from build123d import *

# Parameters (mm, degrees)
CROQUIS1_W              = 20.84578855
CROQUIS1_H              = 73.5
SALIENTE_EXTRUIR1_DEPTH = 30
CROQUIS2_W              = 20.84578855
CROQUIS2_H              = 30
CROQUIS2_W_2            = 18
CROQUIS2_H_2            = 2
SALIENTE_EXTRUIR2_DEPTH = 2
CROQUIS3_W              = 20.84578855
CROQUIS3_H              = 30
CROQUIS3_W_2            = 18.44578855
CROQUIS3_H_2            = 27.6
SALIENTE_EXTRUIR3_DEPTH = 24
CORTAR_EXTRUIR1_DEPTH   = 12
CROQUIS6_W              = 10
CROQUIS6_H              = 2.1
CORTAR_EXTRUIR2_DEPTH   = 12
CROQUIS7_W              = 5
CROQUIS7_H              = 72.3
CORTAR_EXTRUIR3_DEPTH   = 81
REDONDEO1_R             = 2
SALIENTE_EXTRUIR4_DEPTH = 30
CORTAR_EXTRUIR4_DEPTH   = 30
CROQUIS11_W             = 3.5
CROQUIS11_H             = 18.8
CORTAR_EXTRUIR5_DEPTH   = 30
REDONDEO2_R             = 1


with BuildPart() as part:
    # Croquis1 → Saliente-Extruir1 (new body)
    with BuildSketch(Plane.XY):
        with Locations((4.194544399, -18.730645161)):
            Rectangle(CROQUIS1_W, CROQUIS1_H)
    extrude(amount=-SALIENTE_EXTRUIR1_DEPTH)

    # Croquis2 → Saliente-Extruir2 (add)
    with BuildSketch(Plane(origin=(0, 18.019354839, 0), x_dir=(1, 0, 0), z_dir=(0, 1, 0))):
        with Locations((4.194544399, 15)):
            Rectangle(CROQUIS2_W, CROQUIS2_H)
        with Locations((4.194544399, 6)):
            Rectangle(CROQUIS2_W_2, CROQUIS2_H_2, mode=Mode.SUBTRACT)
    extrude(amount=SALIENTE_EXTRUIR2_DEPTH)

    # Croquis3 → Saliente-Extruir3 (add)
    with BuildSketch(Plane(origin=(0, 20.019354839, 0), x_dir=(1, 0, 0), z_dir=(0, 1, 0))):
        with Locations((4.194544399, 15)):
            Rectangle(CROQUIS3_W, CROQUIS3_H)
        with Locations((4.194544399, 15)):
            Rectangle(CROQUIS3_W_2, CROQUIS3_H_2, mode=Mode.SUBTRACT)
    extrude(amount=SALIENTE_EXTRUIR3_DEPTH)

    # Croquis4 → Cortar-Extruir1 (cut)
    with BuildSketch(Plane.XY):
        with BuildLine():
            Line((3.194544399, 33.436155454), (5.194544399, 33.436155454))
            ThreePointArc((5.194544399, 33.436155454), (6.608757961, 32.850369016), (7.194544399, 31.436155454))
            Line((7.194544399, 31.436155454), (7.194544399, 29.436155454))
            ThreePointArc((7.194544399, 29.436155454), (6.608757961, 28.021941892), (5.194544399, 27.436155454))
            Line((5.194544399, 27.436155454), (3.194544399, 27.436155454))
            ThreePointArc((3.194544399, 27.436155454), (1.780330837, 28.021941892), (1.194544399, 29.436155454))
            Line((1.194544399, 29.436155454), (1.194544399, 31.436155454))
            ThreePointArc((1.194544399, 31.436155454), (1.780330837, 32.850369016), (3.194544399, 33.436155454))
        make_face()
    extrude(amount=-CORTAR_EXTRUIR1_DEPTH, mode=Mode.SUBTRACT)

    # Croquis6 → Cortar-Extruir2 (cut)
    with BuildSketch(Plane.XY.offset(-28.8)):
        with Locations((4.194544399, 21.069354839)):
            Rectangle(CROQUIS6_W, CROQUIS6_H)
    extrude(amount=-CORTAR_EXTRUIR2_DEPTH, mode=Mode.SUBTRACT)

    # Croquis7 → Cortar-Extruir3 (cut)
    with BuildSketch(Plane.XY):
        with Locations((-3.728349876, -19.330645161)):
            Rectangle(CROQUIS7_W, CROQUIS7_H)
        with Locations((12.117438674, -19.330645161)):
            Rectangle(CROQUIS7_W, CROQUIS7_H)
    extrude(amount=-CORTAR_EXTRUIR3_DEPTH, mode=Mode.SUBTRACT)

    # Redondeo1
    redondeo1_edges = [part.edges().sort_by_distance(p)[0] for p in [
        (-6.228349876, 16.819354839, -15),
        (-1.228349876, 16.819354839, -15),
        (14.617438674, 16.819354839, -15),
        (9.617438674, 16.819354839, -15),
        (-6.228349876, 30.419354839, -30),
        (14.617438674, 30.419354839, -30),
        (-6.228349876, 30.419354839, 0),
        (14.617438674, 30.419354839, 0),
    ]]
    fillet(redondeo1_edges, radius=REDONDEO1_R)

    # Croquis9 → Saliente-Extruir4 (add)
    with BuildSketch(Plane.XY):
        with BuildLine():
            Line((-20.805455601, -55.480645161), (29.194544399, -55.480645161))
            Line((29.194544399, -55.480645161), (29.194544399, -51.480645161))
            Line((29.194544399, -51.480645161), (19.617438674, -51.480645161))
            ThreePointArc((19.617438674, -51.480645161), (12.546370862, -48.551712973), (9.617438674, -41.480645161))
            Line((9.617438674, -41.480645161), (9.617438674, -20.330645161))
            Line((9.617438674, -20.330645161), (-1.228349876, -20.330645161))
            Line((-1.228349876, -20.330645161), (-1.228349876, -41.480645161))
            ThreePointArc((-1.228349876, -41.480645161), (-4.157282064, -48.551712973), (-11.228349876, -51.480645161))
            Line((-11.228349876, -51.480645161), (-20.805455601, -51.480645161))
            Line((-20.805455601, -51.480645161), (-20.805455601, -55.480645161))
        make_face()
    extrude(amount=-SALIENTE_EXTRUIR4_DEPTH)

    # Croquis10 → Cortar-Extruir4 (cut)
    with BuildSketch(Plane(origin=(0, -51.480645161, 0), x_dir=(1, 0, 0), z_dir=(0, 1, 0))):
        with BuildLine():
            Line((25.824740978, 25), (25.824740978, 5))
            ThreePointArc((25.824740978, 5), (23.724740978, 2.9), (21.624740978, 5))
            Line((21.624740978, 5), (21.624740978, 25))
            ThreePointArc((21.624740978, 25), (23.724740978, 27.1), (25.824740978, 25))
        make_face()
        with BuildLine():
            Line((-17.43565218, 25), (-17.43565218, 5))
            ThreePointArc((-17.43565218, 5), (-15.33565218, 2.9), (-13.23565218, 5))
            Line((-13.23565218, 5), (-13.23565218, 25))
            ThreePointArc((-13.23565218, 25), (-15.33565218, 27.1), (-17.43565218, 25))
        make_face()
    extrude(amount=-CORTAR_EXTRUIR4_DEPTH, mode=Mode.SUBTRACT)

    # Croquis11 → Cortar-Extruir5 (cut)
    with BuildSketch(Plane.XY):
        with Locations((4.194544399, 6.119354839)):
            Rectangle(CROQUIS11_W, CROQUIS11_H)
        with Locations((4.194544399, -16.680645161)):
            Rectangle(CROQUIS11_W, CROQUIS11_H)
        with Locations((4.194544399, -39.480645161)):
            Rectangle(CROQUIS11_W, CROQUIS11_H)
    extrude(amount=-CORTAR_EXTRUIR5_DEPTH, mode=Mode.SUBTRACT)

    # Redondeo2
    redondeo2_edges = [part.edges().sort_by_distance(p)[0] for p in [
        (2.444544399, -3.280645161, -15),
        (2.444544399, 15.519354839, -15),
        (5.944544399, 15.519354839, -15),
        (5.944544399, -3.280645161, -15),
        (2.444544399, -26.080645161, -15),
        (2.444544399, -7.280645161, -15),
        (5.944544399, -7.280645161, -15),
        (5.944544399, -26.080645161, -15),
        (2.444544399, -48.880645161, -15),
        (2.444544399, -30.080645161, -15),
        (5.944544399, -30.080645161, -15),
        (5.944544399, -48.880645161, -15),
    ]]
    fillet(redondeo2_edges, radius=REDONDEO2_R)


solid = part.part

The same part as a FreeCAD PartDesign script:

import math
import FreeCAD as App
import Part
import Sketcher

V = App.Vector


def edges_at(feature, points):
    """Names of the edges that pass closest to the given points."""
    edges = feature.Shape.Edges
    near = lambda p: min(range(len(edges)), key=lambda i: edges[i].distToShape(Part.Vertex(*p))[0])
    return sorted({f"Edge{near(p) + 1}" for p in points})

doc = App.newDocument("Part")
body = doc.addObject("PartDesign::Body", "Body")

sketch1 = body.newObject("Sketcher::SketchObject", "Sketch")
sketch1.AttachmentSupport = (doc.getObject("XY_Plane"), [""])
sketch1.MapMode = "FlatFace"
sketch1.addGeometry(Part.LineSegment(V(-6, 18, 0), V(-6, -55, 0)), False)
sketch1.addGeometry(Part.LineSegment(V(-6, -55, 0), V(15, -55, 0)), False)
sketch1.addGeometry(Part.LineSegment(V(15, -55, 0), V(15, 18, 0)), False)
sketch1.addGeometry(Part.LineSegment(V(15, 18, 0), V(-6, 18, 0)), False)
sketch1.addConstraint(Sketcher.Constraint("Coincident", 0, 2, 1, 1))
sketch1.addConstraint(Sketcher.Constraint("Coincident", 1, 2, 2, 1))
sketch1.addConstraint(Sketcher.Constraint("Coincident", 2, 2, 3, 1))
sketch1.addConstraint(Sketcher.Constraint("Coincident", 3, 2, 0, 1))
sketch1.addConstraint(Sketcher.Constraint("Vertical", 0))
sketch1.addConstraint(Sketcher.Constraint("Horizontal", 1))
sketch1.addConstraint(Sketcher.Constraint("Vertical", 2))
sketch1.addConstraint(Sketcher.Constraint("Horizontal", 3))
sketch1.addConstraint(Sketcher.Constraint("DistanceY", 0, 2, 0, 1, 73.5))
sketch1.addConstraint(Sketcher.Constraint("DistanceX", 1, 1, 1, 2, 20.845789))
sketch1.addConstraint(Sketcher.Constraint("DistanceX", 0, 2, -1, 1, 6.22835))
sketch1.addConstraint(Sketcher.Constraint("DistanceY", 0, 2, -1, 1, 55.480645))
pad1 = body.newObject("PartDesign::Pad", "Pad")
pad1.Profile = sketch1
pad1.Length = 30
pad1.Reversed = True

sketch2 = body.newObject("Sketcher::SketchObject", "Sketch001")
sketch2.AttachmentSupport = (doc.getObject("XZ_Plane"), [""])
sketch2.MapMode = "FlatFace"
sketch2.AttachmentOffset = App.Placement(V(0, 0, -18.019355), App.Rotation())
sketch2.addGeometry(Part.LineSegment(V(-6.2, -30, 0), V(-6.2, 0, 0)), False)
sketch2.addGeometry(Part.LineSegment(V(-6.2, 0, 0), V(14.6, 0, 0)), False)
sketch2.addGeometry(Part.LineSegment(V(14.6, 0, 0), V(14.6, -30, 0)), False)
sketch2.addGeometry(Part.LineSegment(V(14.6, -30, 0), V(-6.2, -30, 0)), False)
sketch2.addGeometry(Part.LineSegment(V(13.2, -5, 0), V(-4.8, -5, 0)), False)
sketch2.addGeometry(Part.LineSegment(V(-4.8, -5, 0), V(-4.8, -7, 0)), False)
sketch2.addGeometry(Part.LineSegment(V(-4.8, -7, 0), V(13.2, -7, 0)), False)
sketch2.addGeometry(Part.LineSegment(V(13.2, -7, 0), V(13.2, -5, 0)), False)
sketch2.addConstraint(Sketcher.Constraint("Coincident", 0, 2, 1, 1))
sketch2.addConstraint(Sketcher.Constraint("Coincident", 1, 2, 2, 1))
sketch2.addConstraint(Sketcher.Constraint("Coincident", 2, 2, 3, 1))
sketch2.addConstraint(Sketcher.Constraint("Coincident", 3, 2, 0, 1))
sketch2.addConstraint(Sketcher.Constraint("Coincident", 4, 2, 5, 1))
sketch2.addConstraint(Sketcher.Constraint("Coincident", 5, 2, 6, 1))
sketch2.addConstraint(Sketcher.Constraint("Coincident", 6, 2, 7, 1))
sketch2.addConstraint(Sketcher.Constraint("Coincident", 7, 2, 4, 1))
sketch2.addConstraint(Sketcher.Constraint("Vertical", 0))
sketch2.addConstraint(Sketcher.Constraint("Horizontal", 1))
sketch2.addConstraint(Sketcher.Constraint("Vertical", 2))
sketch2.addConstraint(Sketcher.Constraint("Horizontal", 3))
sketch2.addConstraint(Sketcher.Constraint("Horizontal", 4))
sketch2.addConstraint(Sketcher.Constraint("Vertical", 5))
sketch2.addConstraint(Sketcher.Constraint("Horizontal", 6))
sketch2.addConstraint(Sketcher.Constraint("Vertical", 7))
sketch2.addConstraint(Sketcher.Constraint("PointOnObject", 0, 2, -1))
sketch2.addConstraint(Sketcher.Constraint("DistanceX", 4, 2, 4, 1, 18.0))
sketch2.addConstraint(Sketcher.Constraint("DistanceY", 0, 1, 0, 2, 30.0))
sketch2.addConstraint(Sketcher.Constraint("DistanceY", 5, 2, 5, 1, 2.0))
sketch2.addConstraint(Sketcher.Constraint("DistanceY", 4, 2, -1, 1, 5.0))
sketch2.addConstraint(Sketcher.Constraint("DistanceX", 1, 1, 1, 2, 20.845789))
sketch2.addConstraint(Sketcher.Constraint("DistanceX", 0, 2, -1, 1, 6.22835))
sketch2.addConstraint(Sketcher.Constraint("DistanceX", 4, 2, -1, 1, 4.805456))
pad2 = body.newObject("PartDesign::Pad", "Pad001")
pad2.Profile = sketch2
pad2.Length = 2
pad2.Reversed = True

sketch3 = body.newObject("Sketcher::SketchObject", "Sketch002")
sketch3.AttachmentSupport = (doc.getObject("XZ_Plane"), [""])
sketch3.MapMode = "FlatFace"
sketch3.AttachmentOffset = App.Placement(V(0, 0, -20.019355), App.Rotation())
sketch3.addGeometry(Part.LineSegment(V(-6, -30, 0), V(-6, 0, 0)), False)
sketch3.addGeometry(Part.LineSegment(V(-6, 0, 0), V(15, 0, 0)), False)
sketch3.addGeometry(Part.LineSegment(V(15, 0, 0), V(15, -30, 0)), False)
sketch3.addGeometry(Part.LineSegment(V(15, -30, 0), V(-6, -30, 0)), False)
sketch3.addGeometry(Part.LineSegment(V(13, -1, 0), V(-5, -1, 0)), False)
sketch3.addGeometry(Part.LineSegment(V(-5, -1, 0), V(-5, -29, 0)), False)
sketch3.addGeometry(Part.LineSegment(V(-5, -29, 0), V(13, -29, 0)), False)
sketch3.addGeometry(Part.LineSegment(V(13, -29, 0), V(13, -1, 0)), False)
sketch3.addConstraint(Sketcher.Constraint("Coincident", 0, 2, 1, 1))
sketch3.addConstraint(Sketcher.Constraint("Coincident", 1, 2, 2, 1))
sketch3.addConstraint(Sketcher.Constraint("Coincident", 2, 2, 3, 1))
sketch3.addConstraint(Sketcher.Constraint("Coincident", 3, 2, 0, 1))
sketch3.addConstraint(Sketcher.Constraint("Coincident", 4, 2, 5, 1))
sketch3.addConstraint(Sketcher.Constraint("Coincident", 5, 2, 6, 1))
sketch3.addConstraint(Sketcher.Constraint("Coincident", 6, 2, 7, 1))
sketch3.addConstraint(Sketcher.Constraint("Coincident", 7, 2, 4, 1))
sketch3.addConstraint(Sketcher.Constraint("Vertical", 0))
sketch3.addConstraint(Sketcher.Constraint("Horizontal", 1))
sketch3.addConstraint(Sketcher.Constraint("Vertical", 2))
sketch3.addConstraint(Sketcher.Constraint("Horizontal", 3))
sketch3.addConstraint(Sketcher.Constraint("Horizontal", 4))
sketch3.addConstraint(Sketcher.Constraint("Vertical", 5))
sketch3.addConstraint(Sketcher.Constraint("Horizontal", 6))
sketch3.addConstraint(Sketcher.Constraint("Vertical", 7))
sketch3.addConstraint(Sketcher.Constraint("PointOnObject", 0, 2, -1))
sketch3.addConstraint(Sketcher.Constraint("DistanceY", 0, 1, 0, 2, 30.0))
sketch3.addConstraint(Sketcher.Constraint("DistanceY", 5, 2, 5, 1, 27.6))
sketch3.addConstraint(Sketcher.Constraint("DistanceY", 4, 2, -1, 1, 1.2))
sketch3.addConstraint(Sketcher.Constraint("DistanceX", 0, 2, 4, 2, 1.2))
sketch3.addConstraint(Sketcher.Constraint("DistanceX", 6, 2, 2, 2, 1.2))
sketch3.addConstraint(Sketcher.Constraint("DistanceX", 1, 1, 1, 2, 20.845789))
sketch3.addConstraint(Sketcher.Constraint("DistanceX", 0, 2, -1, 1, 6.22835))
pad3 = body.newObject("PartDesign::Pad", "Pad002")
pad3.Profile = sketch3
pad3.Length = 24
pad3.Reversed = True

sketch4 = body.newObject("Sketcher::SketchObject", "Sketch003")
sketch4.AttachmentSupport = (doc.getObject("XY_Plane"), [""])
sketch4.MapMode = "FlatFace"
sketch4.addGeometry(Part.LineSegment(V(5.2, 33.4, 0), V(3.2, 33.4, 0)), False)
sketch4.addGeometry(Part.ArcOfCircle(Part.Circle(V(3.2, 31.4, 0), V(0, 0, 1), 2), math.radians(90), math.radians(180)), False)
sketch4.addGeometry(Part.LineSegment(V(1.2, 31.4, 0), V(1.2, 29.4, 0)), False)
sketch4.addGeometry(Part.ArcOfCircle(Part.Circle(V(3.2, 29.4, 0), V(0, 0, 1), 2), math.radians(-180), math.radians(-90)), False)
sketch4.addGeometry(Part.LineSegment(V(3.2, 27.4, 0), V(5.2, 27.4, 0)), False)
sketch4.addGeometry(Part.ArcOfCircle(Part.Circle(V(5.2, 29.4, 0), V(0, 0, 1), 2), math.radians(-90), math.radians(0)), False)
sketch4.addGeometry(Part.LineSegment(V(7.2, 29.4, 0), V(7.2, 31.4, 0)), False)
sketch4.addGeometry(Part.ArcOfCircle(Part.Circle(V(5.2, 31.4, 0), V(0, 0, 1), 2), math.radians(0), math.radians(90)), False)
sketch4.addConstraint(Sketcher.Constraint("Tangent", 0, 2, 1, 1))
sketch4.addConstraint(Sketcher.Constraint("Tangent", 1, 2, 2, 1))
sketch4.addConstraint(Sketcher.Constraint("Tangent", 2, 2, 3, 1))
sketch4.addConstraint(Sketcher.Constraint("Tangent", 3, 2, 4, 1))
sketch4.addConstraint(Sketcher.Constraint("Tangent", 4, 2, 5, 1))
sketch4.addConstraint(Sketcher.Constraint("Tangent", 5, 2, 6, 1))
sketch4.addConstraint(Sketcher.Constraint("Tangent", 6, 2, 7, 1))
sketch4.addConstraint(Sketcher.Constraint("Tangent", 7, 2, 0, 1))
sketch4.addConstraint(Sketcher.Constraint("Horizontal", 0))
sketch4.addConstraint(Sketcher.Constraint("Vertical", 2))
sketch4.addConstraint(Sketcher.Constraint("Horizontal", 4))
sketch4.addConstraint(Sketcher.Constraint("Vertical", 6))
sketch4.addConstraint(Sketcher.Constraint("Equal", 1, 3))
sketch4.addConstraint(Sketcher.Constraint("Equal", 3, 5))
sketch4.addConstraint(Sketcher.Constraint("Equal", 5, 7))
sketch4.addConstraint(Sketcher.Constraint("Equal", 4, 2))
sketch4.addConstraint(Sketcher.Constraint("Radius", 1, 2.0))
sketch4.addConstraint(Sketcher.Constraint("DistanceX", 0, 2, 0, 1, 2.0))
sketch4.addConstraint(Sketcher.Constraint("DistanceX", -1, 1, 1, 3, 3.194544))
sketch4.addConstraint(Sketcher.Constraint("DistanceY", -1, 1, 1, 3, 31.436155))
pocket1 = body.newObject("PartDesign::Pocket", "Pocket")
pocket1.Profile = sketch4
pocket1.Length = 12

sketch5 = body.newObject("Sketcher::SketchObject", "Sketch004")
sketch5.AttachmentSupport = (doc.getObject("XY_Plane"), [""])
sketch5.MapMode = "FlatFace"
sketch5.AttachmentOffset = App.Placement(V(0, 0, -28.8), App.Rotation())
sketch5.addGeometry(Part.LineSegment(V(-0.8, 22.1, 0), V(-0.8, 20, 0)), False)
sketch5.addGeometry(Part.LineSegment(V(-0.8, 20, 0), V(9.2, 20, 0)), False)
sketch5.addGeometry(Part.LineSegment(V(9.2, 20, 0), V(9.2, 22.1, 0)), False)
sketch5.addGeometry(Part.LineSegment(V(9.2, 22.1, 0), V(-0.8, 22.1, 0)), False)
sketch5.addConstraint(Sketcher.Constraint("Coincident", 0, 2, 1, 1))
sketch5.addConstraint(Sketcher.Constraint("Coincident", 1, 2, 2, 1))
sketch5.addConstraint(Sketcher.Constraint("Coincident", 2, 2, 3, 1))
sketch5.addConstraint(Sketcher.Constraint("Coincident", 3, 2, 0, 1))
sketch5.addConstraint(Sketcher.Constraint("Vertical", 0))
sketch5.addConstraint(Sketcher.Constraint("Horizontal", 1))
sketch5.addConstraint(Sketcher.Constraint("Vertical", 2))
sketch5.addConstraint(Sketcher.Constraint("Horizontal", 3))
sketch5.addConstraint(Sketcher.Constraint("DistanceX", 1, 1, 1, 2, 10.0))
sketch5.addConstraint(Sketcher.Constraint("DistanceY", 0, 2, 0, 1, 2.1))
sketch5.addConstraint(Sketcher.Constraint("DistanceX", 0, 2, -1, 1, 0.805456))
sketch5.addConstraint(Sketcher.Constraint("DistanceY", -1, 1, 0, 2, 20.019355))
pocket2 = body.newObject("PartDesign::Pocket", "Pocket001")
pocket2.Profile = sketch5
pocket2.Length = 12

sketch6 = body.newObject("Sketcher::SketchObject", "Sketch005")
sketch6.AttachmentSupport = (doc.getObject("XY_Plane"), [""])
sketch6.MapMode = "FlatFace"
sketch6.addGeometry(Part.LineSegment(V(-6, 17, 0), V(-6, -55, 0)), False)
sketch6.addGeometry(Part.LineSegment(V(-6, -55, 0), V(-1, -55, 0)), False)
sketch6.addGeometry(Part.LineSegment(V(-1, -55, 0), V(-1, 17, 0)), False)
sketch6.addGeometry(Part.LineSegment(V(-1, 17, 0), V(-6, 17, 0)), False)
sketch6.addGeometry(Part.LineSegment(V(10, 17, 0), V(10, -55, 0)), False)
sketch6.addGeometry(Part.LineSegment(V(10, -55, 0), V(15, -55, 0)), False)
sketch6.addGeometry(Part.LineSegment(V(15, -55, 0), V(15, 17, 0)), False)
sketch6.addGeometry(Part.LineSegment(V(15, 17, 0), V(10, 17, 0)), False)
sketch6.addConstraint(Sketcher.Constraint("Coincident", 0, 2, 1, 1))
sketch6.addConstraint(Sketcher.Constraint("Coincident", 1, 2, 2, 1))
sketch6.addConstraint(Sketcher.Constraint("Coincident", 2, 2, 3, 1))
sketch6.addConstraint(Sketcher.Constraint("Coincident", 3, 2, 0, 1))
sketch6.addConstraint(Sketcher.Constraint("Coincident", 4, 2, 5, 1))
sketch6.addConstraint(Sketcher.Constraint("Coincident", 5, 2, 6, 1))
sketch6.addConstraint(Sketcher.Constraint("Coincident", 6, 2, 7, 1))
sketch6.addConstraint(Sketcher.Constraint("Coincident", 7, 2, 4, 1))
sketch6.addConstraint(Sketcher.Constraint("Vertical", 0))
sketch6.addConstraint(Sketcher.Constraint("Horizontal", 1))
sketch6.addConstraint(Sketcher.Constraint("Vertical", 2))
sketch6.addConstraint(Sketcher.Constraint("Horizontal", 3))
sketch6.addConstraint(Sketcher.Constraint("Vertical", 4))
sketch6.addConstraint(Sketcher.Constraint("Horizontal", 5))
sketch6.addConstraint(Sketcher.Constraint("Vertical", 6))
sketch6.addConstraint(Sketcher.Constraint("Horizontal", 7))
sketch6.addConstraint(Sketcher.Constraint("Horizontal", 1, 2, 4, 2))
sketch6.addConstraint(Sketcher.Constraint("Horizontal", 3, 2, 6, 2))
sketch6.addConstraint(Sketcher.Constraint("Equal", 3, 5))
sketch6.addConstraint(Sketcher.Constraint("DistanceX", 1, 1, 1, 2, 5.0))
sketch6.addConstraint(Sketcher.Constraint("DistanceY", 0, 2, 0, 1, 72.3))
sketch6.addConstraint(Sketcher.Constraint("DistanceX", 0, 2, -1, 1, 6.22835))
sketch6.addConstraint(Sketcher.Constraint("DistanceX", -1, 1, 4, 2, 9.617439))
sketch6.addConstraint(Sketcher.Constraint("DistanceY", 0, 2, -1, 1, 55.480645))
pocket3 = body.newObject("PartDesign::Pocket", "Pocket002")
pocket3.Profile = sketch6
pocket3.Length = 81
doc.recompute()

fillet = body.newObject("PartDesign::Fillet", "Fillet")
fillet.Base = (pocket3, edges_at(pocket3, [
    (-6.228, 16.819, -15),
    (-1.228, 16.819, -15),
    (14.617, 16.819, -15),
    (9.617, 16.819, -15),
    (-6.228, 30.419, -30),
    (14.617, 30.419, -30),
    (-6.228, 30.419, 0),
    (14.617, 30.419, 0),
]))
fillet.Radius = 2

sketch7 = body.newObject("Sketcher::SketchObject", "Sketch006")
sketch7.AttachmentSupport = (doc.getObject("XY_Plane"), [""])
sketch7.MapMode = "FlatFace"
sketch7.addGeometry(Part.LineSegment(V(-20.8, -55.5, 0), V(29.2, -55.5, 0)), False)
sketch7.addGeometry(Part.LineSegment(V(29.2, -55.5, 0), V(29.2, -51.5, 0)), False)
sketch7.addGeometry(Part.LineSegment(V(29.2, -51.5, 0), V(19.6, -51.5, 0)), False)
sketch7.addGeometry(Part.ArcOfCircle(Part.Circle(V(19.6, -41.5, 0), V(0, 0, 1), 10), math.radians(180), math.radians(270)), False)
sketch7.addGeometry(Part.LineSegment(V(9.6, -41.5, 0), V(9.6, -20.3, 0)), False)
sketch7.addGeometry(Part.LineSegment(V(9.6, -20.3, 0), V(-1.2, -20.3, 0)), False)
sketch7.addGeometry(Part.LineSegment(V(-1.2, -20.3, 0), V(-1.2, -41.5, 0)), False)
sketch7.addGeometry(Part.ArcOfCircle(Part.Circle(V(-11.2, -41.5, 0), V(0, 0, 1), 10), math.radians(-90), math.radians(0)), False)
sketch7.addGeometry(Part.LineSegment(V(-11.2, -51.5, 0), V(-20.8, -51.5, 0)), False)
sketch7.addGeometry(Part.LineSegment(V(-20.8, -51.5, 0), V(-20.8, -55.5, 0)), False)
sketch7.addConstraint(Sketcher.Constraint("Coincident", 0, 2, 1, 1))
sketch7.addConstraint(Sketcher.Constraint("Coincident", 1, 2, 2, 1))
sketch7.addConstraint(Sketcher.Constraint("Tangent", 2, 2, 3, 2))
sketch7.addConstraint(Sketcher.Constraint("Tangent", 3, 1, 4, 1))
sketch7.addConstraint(Sketcher.Constraint("Coincident", 4, 2, 5, 1))
sketch7.addConstraint(Sketcher.Constraint("Coincident", 5, 2, 6, 1))
sketch7.addConstraint(Sketcher.Constraint("Tangent", 6, 2, 7, 2))
sketch7.addConstraint(Sketcher.Constraint("Tangent", 7, 1, 8, 1))
sketch7.addConstraint(Sketcher.Constraint("Coincident", 8, 2, 9, 1))
sketch7.addConstraint(Sketcher.Constraint("Coincident", 9, 2, 0, 1))
sketch7.addConstraint(Sketcher.Constraint("Horizontal", 0))
sketch7.addConstraint(Sketcher.Constraint("Vertical", 1))
sketch7.addConstraint(Sketcher.Constraint("Horizontal", 2))
sketch7.addConstraint(Sketcher.Constraint("Vertical", 4))
sketch7.addConstraint(Sketcher.Constraint("Horizontal", 5))
sketch7.addConstraint(Sketcher.Constraint("Vertical", 6))
sketch7.addConstraint(Sketcher.Constraint("Horizontal", 8))
sketch7.addConstraint(Sketcher.Constraint("Vertical", 9))
sketch7.addConstraint(Sketcher.Constraint("Equal", 3, 7))
sketch7.addConstraint(Sketcher.Constraint("Horizontal", 3, 3, 7, 3))
sketch7.addConstraint(Sketcher.Constraint("Equal", 2, 8))
sketch7.addConstraint(Sketcher.Constraint("Radius", 3, 10.0))
sketch7.addConstraint(Sketcher.Constraint("DistanceX", 0, 1, 0, 2, 50.0))
sketch7.addConstraint(Sketcher.Constraint("DistanceY", 1, 1, 1, 2, 4.0))
sketch7.addConstraint(Sketcher.Constraint("DistanceY", 4, 1, 4, 2, 21.15))
sketch7.addConstraint(Sketcher.Constraint("DistanceX", 5, 2, 5, 1, 10.845789))
sketch7.addConstraint(Sketcher.Constraint("DistanceX", -1, 1, 3, 3, 19.617439))
sketch7.addConstraint(Sketcher.Constraint("DistanceY", 3, 3, -1, 1, 41.480645))
pad4 = body.newObject("PartDesign::Pad", "Pad003")
pad4.Profile = sketch7
pad4.Length = 30
pad4.Reversed = True

sketch8 = body.newObject("Sketcher::SketchObject", "Sketch007")
sketch8.AttachmentSupport = (doc.getObject("XZ_Plane"), [""])
sketch8.MapMode = "FlatFace"
sketch8.AttachmentOffset = App.Placement(V(0, 0, 51.480645), App.Rotation())
sketch8.addGeometry(Part.LineSegment(V(25.8, -5, 0), V(25.8, -25, 0)), False)
sketch8.addGeometry(Part.ArcOfCircle(Part.Circle(V(23.7, -25, 0), V(0, 0, 1), 2.1), math.radians(180), math.radians(360)), False)
sketch8.addGeometry(Part.LineSegment(V(21.6, -25, 0), V(21.6, -5, 0)), False)
sketch8.addGeometry(Part.ArcOfCircle(Part.Circle(V(23.7, -5, 0), V(0, 0, 1), 2.1), math.radians(0), math.radians(180)), False)
sketch8.addGeometry(Part.LineSegment(V(-17.4, -25, 0), V(-17.4, -5, 0)), False)
sketch8.addGeometry(Part.ArcOfCircle(Part.Circle(V(-15.3, -5, 0), V(0, 0, 1), 2.1), math.radians(0), math.radians(180)), False)
sketch8.addGeometry(Part.LineSegment(V(-13.2, -5, 0), V(-13.2, -25, 0)), False)
sketch8.addGeometry(Part.ArcOfCircle(Part.Circle(V(-15.3, -25, 0), V(0, 0, 1), 2.1), math.radians(180), math.radians(360)), False)
sketch8.addConstraint(Sketcher.Constraint("Tangent", 0, 2, 1, 2))
sketch8.addConstraint(Sketcher.Constraint("Tangent", 1, 1, 2, 1))
sketch8.addConstraint(Sketcher.Constraint("Tangent", 2, 2, 3, 2))
sketch8.addConstraint(Sketcher.Constraint("Tangent", 3, 1, 0, 1))
sketch8.addConstraint(Sketcher.Constraint("Tangent", 4, 2, 5, 2))
sketch8.addConstraint(Sketcher.Constraint("Tangent", 5, 1, 6, 1))
sketch8.addConstraint(Sketcher.Constraint("Tangent", 6, 2, 7, 2))
sketch8.addConstraint(Sketcher.Constraint("Tangent", 7, 1, 4, 1))
sketch8.addConstraint(Sketcher.Constraint("Vertical", 0))
sketch8.addConstraint(Sketcher.Constraint("Vertical", 2))
sketch8.addConstraint(Sketcher.Constraint("Vertical", 4))
sketch8.addConstraint(Sketcher.Constraint("Vertical", 6))
sketch8.addConstraint(Sketcher.Constraint("Equal", 3, 5))
sketch8.addConstraint(Sketcher.Constraint("Horizontal", 3, 3, 5, 3))
sketch8.addConstraint(Sketcher.Constraint("Horizontal", 1, 3, 7, 3))
sketch8.addConstraint(Sketcher.Constraint("Radius", 1, 2.1))
sketch8.addConstraint(Sketcher.Constraint("DistanceY", 0, 2, 0, 1, 20.0))
sketch8.addConstraint(Sketcher.Constraint("DistanceY", 1, 3, -1, 1, 25.0))
sketch8.addConstraint(Sketcher.Constraint("DistanceX", -1, 1, 1, 3, 23.724741))
sketch8.addConstraint(Sketcher.Constraint("DistanceX", 5, 3, -1, 1, 15.335652))
pocket4 = body.newObject("PartDesign::Pocket", "Pocket003")
pocket4.Profile = sketch8
pocket4.Length = 30
pocket4.Reversed = True

sketch9 = body.newObject("Sketcher::SketchObject", "Sketch008")
sketch9.AttachmentSupport = (doc.getObject("XY_Plane"), [""])
sketch9.MapMode = "FlatFace"
sketch9.addGeometry(Part.LineSegment(V(2.4, 15.5, 0), V(2.4, -3.3, 0)), False)
sketch9.addGeometry(Part.LineSegment(V(2.4, -3.3, 0), V(5.9, -3.3, 0)), False)
sketch9.addGeometry(Part.LineSegment(V(5.9, -3.3, 0), V(5.9, 15.5, 0)), False)
sketch9.addGeometry(Part.LineSegment(V(5.9, 15.5, 0), V(2.4, 15.5, 0)), False)
sketch9.addGeometry(Part.LineSegment(V(2.4, -7.3, 0), V(2.4, -26.1, 0)), False)
sketch9.addGeometry(Part.LineSegment(V(2.4, -26.1, 0), V(5.9, -26.1, 0)), False)
sketch9.addGeometry(Part.LineSegment(V(5.9, -26.1, 0), V(5.9, -7.3, 0)), False)
sketch9.addGeometry(Part.LineSegment(V(5.9, -7.3, 0), V(2.4, -7.3, 0)), False)
sketch9.addGeometry(Part.LineSegment(V(2.4, -30.1, 0), V(2.4, -48.9, 0)), False)
sketch9.addGeometry(Part.LineSegment(V(2.4, -48.9, 0), V(5.9, -48.9, 0)), False)
sketch9.addGeometry(Part.LineSegment(V(5.9, -48.9, 0), V(5.9, -30.1, 0)), False)
sketch9.addGeometry(Part.LineSegment(V(5.9, -30.1, 0), V(2.4, -30.1, 0)), False)
sketch9.addConstraint(Sketcher.Constraint("Coincident", 0, 2, 1, 1))
sketch9.addConstraint(Sketcher.Constraint("Coincident", 1, 2, 2, 1))
sketch9.addConstraint(Sketcher.Constraint("Coincident", 2, 2, 3, 1))
sketch9.addConstraint(Sketcher.Constraint("Coincident", 3, 2, 0, 1))
sketch9.addConstraint(Sketcher.Constraint("Coincident", 4, 2, 5, 1))
sketch9.addConstraint(Sketcher.Constraint("Coincident", 5, 2, 6, 1))
sketch9.addConstraint(Sketcher.Constraint("Coincident", 6, 2, 7, 1))
sketch9.addConstraint(Sketcher.Constraint("Coincident", 7, 2, 4, 1))
sketch9.addConstraint(Sketcher.Constraint("Coincident", 8, 2, 9, 1))
sketch9.addConstraint(Sketcher.Constraint("Coincident", 9, 2, 10, 1))
sketch9.addConstraint(Sketcher.Constraint("Coincident", 10, 2, 11, 1))
sketch9.addConstraint(Sketcher.Constraint("Coincident", 11, 2, 8, 1))
sketch9.addConstraint(Sketcher.Constraint("Vertical", 0))
sketch9.addConstraint(Sketcher.Constraint("Horizontal", 1))
sketch9.addConstraint(Sketcher.Constraint("Vertical", 2))
sketch9.addConstraint(Sketcher.Constraint("Horizontal", 3))
sketch9.addConstraint(Sketcher.Constraint("Vertical", 4))
sketch9.addConstraint(Sketcher.Constraint("Horizontal", 5))
sketch9.addConstraint(Sketcher.Constraint("Vertical", 6))
sketch9.addConstraint(Sketcher.Constraint("Horizontal", 7))
sketch9.addConstraint(Sketcher.Constraint("Vertical", 8))
sketch9.addConstraint(Sketcher.Constraint("Horizontal", 9))
sketch9.addConstraint(Sketcher.Constraint("Vertical", 10))
sketch9.addConstraint(Sketcher.Constraint("Horizontal", 11))
sketch9.addConstraint(Sketcher.Constraint("Vertical", 3, 2, 4, 2))
sketch9.addConstraint(Sketcher.Constraint("Vertical", 2, 2, 5, 2))
sketch9.addConstraint(Sketcher.Constraint("Vertical", 7, 2, 8, 2))
sketch9.addConstraint(Sketcher.Constraint("Vertical", 6, 2, 9, 2))
sketch9.addConstraint(Sketcher.Constraint("Equal", 2, 4))
sketch9.addConstraint(Sketcher.Constraint("Equal", 6, 8))
sketch9.addConstraint(Sketcher.Constraint("DistanceX", 1, 1, 1, 2, 3.5))
sketch9.addConstraint(Sketcher.Constraint("DistanceY", 0, 2, 0, 1, 18.8))
sketch9.addConstraint(Sketcher.Constraint("DistanceY", 6, 2, 1, 2, 4.0))
sketch9.addConstraint(Sketcher.Constraint("DistanceY", 10, 2, 5, 2, 4.0))
sketch9.addConstraint(Sketcher.Constraint("DistanceX", -1, 1, 0, 2, 2.444544))
sketch9.addConstraint(Sketcher.Constraint("DistanceY", 0, 2, -1, 1, 3.280645))
pocket5 = body.newObject("PartDesign::Pocket", "Pocket004")
pocket5.Profile = sketch9
pocket5.Length = 30
doc.recompute()

fillet2 = body.newObject("PartDesign::Fillet", "Fillet001")
fillet2.Base = (pocket5, edges_at(pocket5, [
    (2.445, -3.281, -15),
    (2.445, 15.519, -15),
    (5.945, 15.519, -15),
    (5.945, -3.281, -15),
    (2.445, -26.081, -15),
    (2.445, -7.281, -15),
    (5.945, -7.281, -15),
    (5.945, -26.081, -15),
    (2.445, -48.881, -15),
    (2.445, -30.081, -15),
    (5.945, -30.081, -15),
    (5.945, -48.881, -15),
]))
fillet2.Radius = 1

doc.recompute()
